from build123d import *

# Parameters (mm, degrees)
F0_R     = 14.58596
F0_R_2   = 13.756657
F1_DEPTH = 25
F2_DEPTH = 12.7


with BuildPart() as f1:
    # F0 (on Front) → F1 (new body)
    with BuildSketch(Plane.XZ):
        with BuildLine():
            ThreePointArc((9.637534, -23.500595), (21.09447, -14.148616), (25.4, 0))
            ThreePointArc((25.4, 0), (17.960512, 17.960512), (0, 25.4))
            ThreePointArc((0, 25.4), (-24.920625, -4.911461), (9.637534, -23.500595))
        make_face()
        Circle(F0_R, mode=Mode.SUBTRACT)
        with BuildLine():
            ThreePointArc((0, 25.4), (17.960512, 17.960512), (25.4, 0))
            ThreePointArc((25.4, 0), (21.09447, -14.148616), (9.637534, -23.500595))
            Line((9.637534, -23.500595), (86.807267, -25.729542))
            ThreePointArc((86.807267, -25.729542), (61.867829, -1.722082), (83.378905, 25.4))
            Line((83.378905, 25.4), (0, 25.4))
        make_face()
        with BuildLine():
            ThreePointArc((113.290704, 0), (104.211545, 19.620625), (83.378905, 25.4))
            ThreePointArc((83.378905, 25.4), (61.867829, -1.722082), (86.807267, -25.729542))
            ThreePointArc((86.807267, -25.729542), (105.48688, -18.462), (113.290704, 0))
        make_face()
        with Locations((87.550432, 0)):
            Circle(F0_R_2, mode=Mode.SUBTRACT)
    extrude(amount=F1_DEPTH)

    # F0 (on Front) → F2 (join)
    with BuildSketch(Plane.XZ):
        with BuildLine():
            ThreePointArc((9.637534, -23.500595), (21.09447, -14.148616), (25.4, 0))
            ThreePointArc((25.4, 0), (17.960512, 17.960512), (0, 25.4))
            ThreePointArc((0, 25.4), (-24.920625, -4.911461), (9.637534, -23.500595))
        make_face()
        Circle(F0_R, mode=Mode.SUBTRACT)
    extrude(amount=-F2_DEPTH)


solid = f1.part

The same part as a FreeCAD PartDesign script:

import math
import FreeCAD as App
import Part
import Sketcher
from FreeCAD import Vector
Q = App.Units.Quantity

doc = App.newDocument("Part")
body = doc.addObject("PartDesign::Body", "Body")

# Sketch on XZ plane
sketch1 = doc.addObject("Sketcher::SketchObject", "Sketch")
body.addObject(sketch1)
sketch1.AttachmentSupport = (doc.XZ_Plane, [""])
sketch1.MapMode = "FlatFace"
sketch1.addGeometry([
    Part.ArcOfCircle(Part.Circle(Vector(0, 0, 0), Vector(0, 0, 1), 25.4), math.radians(90.000001), math.radians(292.298408)),  # 0
    Part.LineSegment(Vector(9.637534, -23.500595, 0), Vector(86.807267, -25.729542, 0)),  # 1
    Part.ArcOfCircle(Part.Circle(Vector(87.550432, 0, 0), Vector(0, 0, 1), 25.740272), math.radians(-91.654455), math.radians(0)),  # 2
    Part.ArcOfCircle(Part.Circle(Vector(87.550431, 0, 0), Vector(0, 0, 1), 25.740273), math.radians(0), math.radians(99.326617)),  # 3
    Part.LineSegment(Vector(83.378905, 25.4, 0), Vector(0, 25.4, 0)),  # 4
    Part.Circle(Vector(0, 0, 0), Vector(0, 0, 1), 14.58596),  # 5
    Part.Circle(Vector(87.550432, 0, 0), Vector(0, 0, 1), 13.756657),  # 6
], False)
sketch1.addConstraint([
    Sketcher.Constraint("Coincident", 0, 2, 1, 1),
    Sketcher.Constraint("Coincident", 1, 2, 2, 1),
    Sketcher.Constraint("Coincident", 2, 2, 3, 1),
    Sketcher.Constraint("Coincident", 3, 2, 4, 1),
    Sketcher.Constraint("Coincident", 4, 2, 0, 1),
    Sketcher.Constraint("Horizontal", 4),
    Sketcher.Constraint("Coincident", 0, 3, -1, 1),
    Sketcher.Constraint("Coincident", 5, 3, -1, 1),
    Sketcher.Constraint("Coincident", 3, 3, 2, 3),
    Sketcher.Constraint("Coincident", 6, 3, 2, 3),
    Sketcher.Constraint("PointOnObject", 2, 3, -1),
    Sketcher.Constraint("PointOnObject", 2, 2, -1),
    Sketcher.Constraint("PointOnObject", 4, 2, -2),
    Sketcher.Constraint("Radius", 0, Q("1 in")),
    Sketcher.Constraint("Diameter", 5, Q("29.17192 mm")),
    Sketcher.Constraint("Diameter", 6, Q("27.513314 mm")),
    Sketcher.Constraint("Radius", 2, Q("25.740272 mm")),
    Sketcher.Constraint("DistanceX", 4, 2, 4, 1, Q("83.378905 mm")),
    Sketcher.Constraint("DistanceY", 1, 2, -1, 1, Q("25.729542 mm")),
    Sketcher.Constraint("DistanceX", 0, 2, 2, 2, Q("103.65317 mm")),
])
pad1 = doc.addObject("PartDesign::Pad", "Pad")
body.addObject(pad1)
pad1.Profile = sketch1
pad1.Length = 25

# Sketch on XZ plane
sketch2 = doc.addObject("Sketcher::SketchObject", "Sketch001")
body.addObject(sketch2)
sketch2.AttachmentSupport = (doc.XZ_Plane, [""])
sketch2.MapMode = "FlatFace"
sketch2.addGeometry([
    Part.ArcOfCircle(Part.Circle(Vector(0, 0, 0), Vector(0, 0, 1), 25), math.radians(-68), math.radians(0)),
    Part.ArcOfCircle(Part.Circle(Vector(0, 0, 0), Vector(0, 0, 1), 25), math.radians(0), math.radians(90)),
    Part.ArcOfCircle(Part.Circle(Vector(0, 0, 0), Vector(0, 0, 1), 25), math.radians(90), math.radians(292)),
    Part.Circle(Vector(0, 0, 0), Vector(0, 0, 1), 15),
], False)
sketch2.addConstraint([
    Sketcher.Constraint("Tangent", 0, 2, 1, 1),
    Sketcher.Constraint("Tangent", 1, 2, 2, 1),
    Sketcher.Constraint("Tangent", 2, 2, 0, 1),
    Sketcher.Constraint("Coincident", 0, 3, -1, 1),
    Sketcher.Constraint("Coincident", 3, 3, -1, 1),
    Sketcher.Constraint("PointOnObject", 0, 2, -1),
    Sketcher.Constraint("PointOnObject", 1, 2, -2),
    Sketcher.Constraint("Radius", 0, Q("1.0000001 in")),
    Sketcher.Constraint("Diameter", 3, Q("29.17192 mm")),
    Sketcher.Constraint("DistanceX", -1, 1, 2, 2, Q("9.637534 mm")),
])
pad2 = doc.addObject("PartDesign::Pad", "Pad001")
body.addObject(pad2)
pad2.Profile = sketch2
pad2.Length = Q("0.5 in")
pad2.Reversed = True

doc.recompute()
